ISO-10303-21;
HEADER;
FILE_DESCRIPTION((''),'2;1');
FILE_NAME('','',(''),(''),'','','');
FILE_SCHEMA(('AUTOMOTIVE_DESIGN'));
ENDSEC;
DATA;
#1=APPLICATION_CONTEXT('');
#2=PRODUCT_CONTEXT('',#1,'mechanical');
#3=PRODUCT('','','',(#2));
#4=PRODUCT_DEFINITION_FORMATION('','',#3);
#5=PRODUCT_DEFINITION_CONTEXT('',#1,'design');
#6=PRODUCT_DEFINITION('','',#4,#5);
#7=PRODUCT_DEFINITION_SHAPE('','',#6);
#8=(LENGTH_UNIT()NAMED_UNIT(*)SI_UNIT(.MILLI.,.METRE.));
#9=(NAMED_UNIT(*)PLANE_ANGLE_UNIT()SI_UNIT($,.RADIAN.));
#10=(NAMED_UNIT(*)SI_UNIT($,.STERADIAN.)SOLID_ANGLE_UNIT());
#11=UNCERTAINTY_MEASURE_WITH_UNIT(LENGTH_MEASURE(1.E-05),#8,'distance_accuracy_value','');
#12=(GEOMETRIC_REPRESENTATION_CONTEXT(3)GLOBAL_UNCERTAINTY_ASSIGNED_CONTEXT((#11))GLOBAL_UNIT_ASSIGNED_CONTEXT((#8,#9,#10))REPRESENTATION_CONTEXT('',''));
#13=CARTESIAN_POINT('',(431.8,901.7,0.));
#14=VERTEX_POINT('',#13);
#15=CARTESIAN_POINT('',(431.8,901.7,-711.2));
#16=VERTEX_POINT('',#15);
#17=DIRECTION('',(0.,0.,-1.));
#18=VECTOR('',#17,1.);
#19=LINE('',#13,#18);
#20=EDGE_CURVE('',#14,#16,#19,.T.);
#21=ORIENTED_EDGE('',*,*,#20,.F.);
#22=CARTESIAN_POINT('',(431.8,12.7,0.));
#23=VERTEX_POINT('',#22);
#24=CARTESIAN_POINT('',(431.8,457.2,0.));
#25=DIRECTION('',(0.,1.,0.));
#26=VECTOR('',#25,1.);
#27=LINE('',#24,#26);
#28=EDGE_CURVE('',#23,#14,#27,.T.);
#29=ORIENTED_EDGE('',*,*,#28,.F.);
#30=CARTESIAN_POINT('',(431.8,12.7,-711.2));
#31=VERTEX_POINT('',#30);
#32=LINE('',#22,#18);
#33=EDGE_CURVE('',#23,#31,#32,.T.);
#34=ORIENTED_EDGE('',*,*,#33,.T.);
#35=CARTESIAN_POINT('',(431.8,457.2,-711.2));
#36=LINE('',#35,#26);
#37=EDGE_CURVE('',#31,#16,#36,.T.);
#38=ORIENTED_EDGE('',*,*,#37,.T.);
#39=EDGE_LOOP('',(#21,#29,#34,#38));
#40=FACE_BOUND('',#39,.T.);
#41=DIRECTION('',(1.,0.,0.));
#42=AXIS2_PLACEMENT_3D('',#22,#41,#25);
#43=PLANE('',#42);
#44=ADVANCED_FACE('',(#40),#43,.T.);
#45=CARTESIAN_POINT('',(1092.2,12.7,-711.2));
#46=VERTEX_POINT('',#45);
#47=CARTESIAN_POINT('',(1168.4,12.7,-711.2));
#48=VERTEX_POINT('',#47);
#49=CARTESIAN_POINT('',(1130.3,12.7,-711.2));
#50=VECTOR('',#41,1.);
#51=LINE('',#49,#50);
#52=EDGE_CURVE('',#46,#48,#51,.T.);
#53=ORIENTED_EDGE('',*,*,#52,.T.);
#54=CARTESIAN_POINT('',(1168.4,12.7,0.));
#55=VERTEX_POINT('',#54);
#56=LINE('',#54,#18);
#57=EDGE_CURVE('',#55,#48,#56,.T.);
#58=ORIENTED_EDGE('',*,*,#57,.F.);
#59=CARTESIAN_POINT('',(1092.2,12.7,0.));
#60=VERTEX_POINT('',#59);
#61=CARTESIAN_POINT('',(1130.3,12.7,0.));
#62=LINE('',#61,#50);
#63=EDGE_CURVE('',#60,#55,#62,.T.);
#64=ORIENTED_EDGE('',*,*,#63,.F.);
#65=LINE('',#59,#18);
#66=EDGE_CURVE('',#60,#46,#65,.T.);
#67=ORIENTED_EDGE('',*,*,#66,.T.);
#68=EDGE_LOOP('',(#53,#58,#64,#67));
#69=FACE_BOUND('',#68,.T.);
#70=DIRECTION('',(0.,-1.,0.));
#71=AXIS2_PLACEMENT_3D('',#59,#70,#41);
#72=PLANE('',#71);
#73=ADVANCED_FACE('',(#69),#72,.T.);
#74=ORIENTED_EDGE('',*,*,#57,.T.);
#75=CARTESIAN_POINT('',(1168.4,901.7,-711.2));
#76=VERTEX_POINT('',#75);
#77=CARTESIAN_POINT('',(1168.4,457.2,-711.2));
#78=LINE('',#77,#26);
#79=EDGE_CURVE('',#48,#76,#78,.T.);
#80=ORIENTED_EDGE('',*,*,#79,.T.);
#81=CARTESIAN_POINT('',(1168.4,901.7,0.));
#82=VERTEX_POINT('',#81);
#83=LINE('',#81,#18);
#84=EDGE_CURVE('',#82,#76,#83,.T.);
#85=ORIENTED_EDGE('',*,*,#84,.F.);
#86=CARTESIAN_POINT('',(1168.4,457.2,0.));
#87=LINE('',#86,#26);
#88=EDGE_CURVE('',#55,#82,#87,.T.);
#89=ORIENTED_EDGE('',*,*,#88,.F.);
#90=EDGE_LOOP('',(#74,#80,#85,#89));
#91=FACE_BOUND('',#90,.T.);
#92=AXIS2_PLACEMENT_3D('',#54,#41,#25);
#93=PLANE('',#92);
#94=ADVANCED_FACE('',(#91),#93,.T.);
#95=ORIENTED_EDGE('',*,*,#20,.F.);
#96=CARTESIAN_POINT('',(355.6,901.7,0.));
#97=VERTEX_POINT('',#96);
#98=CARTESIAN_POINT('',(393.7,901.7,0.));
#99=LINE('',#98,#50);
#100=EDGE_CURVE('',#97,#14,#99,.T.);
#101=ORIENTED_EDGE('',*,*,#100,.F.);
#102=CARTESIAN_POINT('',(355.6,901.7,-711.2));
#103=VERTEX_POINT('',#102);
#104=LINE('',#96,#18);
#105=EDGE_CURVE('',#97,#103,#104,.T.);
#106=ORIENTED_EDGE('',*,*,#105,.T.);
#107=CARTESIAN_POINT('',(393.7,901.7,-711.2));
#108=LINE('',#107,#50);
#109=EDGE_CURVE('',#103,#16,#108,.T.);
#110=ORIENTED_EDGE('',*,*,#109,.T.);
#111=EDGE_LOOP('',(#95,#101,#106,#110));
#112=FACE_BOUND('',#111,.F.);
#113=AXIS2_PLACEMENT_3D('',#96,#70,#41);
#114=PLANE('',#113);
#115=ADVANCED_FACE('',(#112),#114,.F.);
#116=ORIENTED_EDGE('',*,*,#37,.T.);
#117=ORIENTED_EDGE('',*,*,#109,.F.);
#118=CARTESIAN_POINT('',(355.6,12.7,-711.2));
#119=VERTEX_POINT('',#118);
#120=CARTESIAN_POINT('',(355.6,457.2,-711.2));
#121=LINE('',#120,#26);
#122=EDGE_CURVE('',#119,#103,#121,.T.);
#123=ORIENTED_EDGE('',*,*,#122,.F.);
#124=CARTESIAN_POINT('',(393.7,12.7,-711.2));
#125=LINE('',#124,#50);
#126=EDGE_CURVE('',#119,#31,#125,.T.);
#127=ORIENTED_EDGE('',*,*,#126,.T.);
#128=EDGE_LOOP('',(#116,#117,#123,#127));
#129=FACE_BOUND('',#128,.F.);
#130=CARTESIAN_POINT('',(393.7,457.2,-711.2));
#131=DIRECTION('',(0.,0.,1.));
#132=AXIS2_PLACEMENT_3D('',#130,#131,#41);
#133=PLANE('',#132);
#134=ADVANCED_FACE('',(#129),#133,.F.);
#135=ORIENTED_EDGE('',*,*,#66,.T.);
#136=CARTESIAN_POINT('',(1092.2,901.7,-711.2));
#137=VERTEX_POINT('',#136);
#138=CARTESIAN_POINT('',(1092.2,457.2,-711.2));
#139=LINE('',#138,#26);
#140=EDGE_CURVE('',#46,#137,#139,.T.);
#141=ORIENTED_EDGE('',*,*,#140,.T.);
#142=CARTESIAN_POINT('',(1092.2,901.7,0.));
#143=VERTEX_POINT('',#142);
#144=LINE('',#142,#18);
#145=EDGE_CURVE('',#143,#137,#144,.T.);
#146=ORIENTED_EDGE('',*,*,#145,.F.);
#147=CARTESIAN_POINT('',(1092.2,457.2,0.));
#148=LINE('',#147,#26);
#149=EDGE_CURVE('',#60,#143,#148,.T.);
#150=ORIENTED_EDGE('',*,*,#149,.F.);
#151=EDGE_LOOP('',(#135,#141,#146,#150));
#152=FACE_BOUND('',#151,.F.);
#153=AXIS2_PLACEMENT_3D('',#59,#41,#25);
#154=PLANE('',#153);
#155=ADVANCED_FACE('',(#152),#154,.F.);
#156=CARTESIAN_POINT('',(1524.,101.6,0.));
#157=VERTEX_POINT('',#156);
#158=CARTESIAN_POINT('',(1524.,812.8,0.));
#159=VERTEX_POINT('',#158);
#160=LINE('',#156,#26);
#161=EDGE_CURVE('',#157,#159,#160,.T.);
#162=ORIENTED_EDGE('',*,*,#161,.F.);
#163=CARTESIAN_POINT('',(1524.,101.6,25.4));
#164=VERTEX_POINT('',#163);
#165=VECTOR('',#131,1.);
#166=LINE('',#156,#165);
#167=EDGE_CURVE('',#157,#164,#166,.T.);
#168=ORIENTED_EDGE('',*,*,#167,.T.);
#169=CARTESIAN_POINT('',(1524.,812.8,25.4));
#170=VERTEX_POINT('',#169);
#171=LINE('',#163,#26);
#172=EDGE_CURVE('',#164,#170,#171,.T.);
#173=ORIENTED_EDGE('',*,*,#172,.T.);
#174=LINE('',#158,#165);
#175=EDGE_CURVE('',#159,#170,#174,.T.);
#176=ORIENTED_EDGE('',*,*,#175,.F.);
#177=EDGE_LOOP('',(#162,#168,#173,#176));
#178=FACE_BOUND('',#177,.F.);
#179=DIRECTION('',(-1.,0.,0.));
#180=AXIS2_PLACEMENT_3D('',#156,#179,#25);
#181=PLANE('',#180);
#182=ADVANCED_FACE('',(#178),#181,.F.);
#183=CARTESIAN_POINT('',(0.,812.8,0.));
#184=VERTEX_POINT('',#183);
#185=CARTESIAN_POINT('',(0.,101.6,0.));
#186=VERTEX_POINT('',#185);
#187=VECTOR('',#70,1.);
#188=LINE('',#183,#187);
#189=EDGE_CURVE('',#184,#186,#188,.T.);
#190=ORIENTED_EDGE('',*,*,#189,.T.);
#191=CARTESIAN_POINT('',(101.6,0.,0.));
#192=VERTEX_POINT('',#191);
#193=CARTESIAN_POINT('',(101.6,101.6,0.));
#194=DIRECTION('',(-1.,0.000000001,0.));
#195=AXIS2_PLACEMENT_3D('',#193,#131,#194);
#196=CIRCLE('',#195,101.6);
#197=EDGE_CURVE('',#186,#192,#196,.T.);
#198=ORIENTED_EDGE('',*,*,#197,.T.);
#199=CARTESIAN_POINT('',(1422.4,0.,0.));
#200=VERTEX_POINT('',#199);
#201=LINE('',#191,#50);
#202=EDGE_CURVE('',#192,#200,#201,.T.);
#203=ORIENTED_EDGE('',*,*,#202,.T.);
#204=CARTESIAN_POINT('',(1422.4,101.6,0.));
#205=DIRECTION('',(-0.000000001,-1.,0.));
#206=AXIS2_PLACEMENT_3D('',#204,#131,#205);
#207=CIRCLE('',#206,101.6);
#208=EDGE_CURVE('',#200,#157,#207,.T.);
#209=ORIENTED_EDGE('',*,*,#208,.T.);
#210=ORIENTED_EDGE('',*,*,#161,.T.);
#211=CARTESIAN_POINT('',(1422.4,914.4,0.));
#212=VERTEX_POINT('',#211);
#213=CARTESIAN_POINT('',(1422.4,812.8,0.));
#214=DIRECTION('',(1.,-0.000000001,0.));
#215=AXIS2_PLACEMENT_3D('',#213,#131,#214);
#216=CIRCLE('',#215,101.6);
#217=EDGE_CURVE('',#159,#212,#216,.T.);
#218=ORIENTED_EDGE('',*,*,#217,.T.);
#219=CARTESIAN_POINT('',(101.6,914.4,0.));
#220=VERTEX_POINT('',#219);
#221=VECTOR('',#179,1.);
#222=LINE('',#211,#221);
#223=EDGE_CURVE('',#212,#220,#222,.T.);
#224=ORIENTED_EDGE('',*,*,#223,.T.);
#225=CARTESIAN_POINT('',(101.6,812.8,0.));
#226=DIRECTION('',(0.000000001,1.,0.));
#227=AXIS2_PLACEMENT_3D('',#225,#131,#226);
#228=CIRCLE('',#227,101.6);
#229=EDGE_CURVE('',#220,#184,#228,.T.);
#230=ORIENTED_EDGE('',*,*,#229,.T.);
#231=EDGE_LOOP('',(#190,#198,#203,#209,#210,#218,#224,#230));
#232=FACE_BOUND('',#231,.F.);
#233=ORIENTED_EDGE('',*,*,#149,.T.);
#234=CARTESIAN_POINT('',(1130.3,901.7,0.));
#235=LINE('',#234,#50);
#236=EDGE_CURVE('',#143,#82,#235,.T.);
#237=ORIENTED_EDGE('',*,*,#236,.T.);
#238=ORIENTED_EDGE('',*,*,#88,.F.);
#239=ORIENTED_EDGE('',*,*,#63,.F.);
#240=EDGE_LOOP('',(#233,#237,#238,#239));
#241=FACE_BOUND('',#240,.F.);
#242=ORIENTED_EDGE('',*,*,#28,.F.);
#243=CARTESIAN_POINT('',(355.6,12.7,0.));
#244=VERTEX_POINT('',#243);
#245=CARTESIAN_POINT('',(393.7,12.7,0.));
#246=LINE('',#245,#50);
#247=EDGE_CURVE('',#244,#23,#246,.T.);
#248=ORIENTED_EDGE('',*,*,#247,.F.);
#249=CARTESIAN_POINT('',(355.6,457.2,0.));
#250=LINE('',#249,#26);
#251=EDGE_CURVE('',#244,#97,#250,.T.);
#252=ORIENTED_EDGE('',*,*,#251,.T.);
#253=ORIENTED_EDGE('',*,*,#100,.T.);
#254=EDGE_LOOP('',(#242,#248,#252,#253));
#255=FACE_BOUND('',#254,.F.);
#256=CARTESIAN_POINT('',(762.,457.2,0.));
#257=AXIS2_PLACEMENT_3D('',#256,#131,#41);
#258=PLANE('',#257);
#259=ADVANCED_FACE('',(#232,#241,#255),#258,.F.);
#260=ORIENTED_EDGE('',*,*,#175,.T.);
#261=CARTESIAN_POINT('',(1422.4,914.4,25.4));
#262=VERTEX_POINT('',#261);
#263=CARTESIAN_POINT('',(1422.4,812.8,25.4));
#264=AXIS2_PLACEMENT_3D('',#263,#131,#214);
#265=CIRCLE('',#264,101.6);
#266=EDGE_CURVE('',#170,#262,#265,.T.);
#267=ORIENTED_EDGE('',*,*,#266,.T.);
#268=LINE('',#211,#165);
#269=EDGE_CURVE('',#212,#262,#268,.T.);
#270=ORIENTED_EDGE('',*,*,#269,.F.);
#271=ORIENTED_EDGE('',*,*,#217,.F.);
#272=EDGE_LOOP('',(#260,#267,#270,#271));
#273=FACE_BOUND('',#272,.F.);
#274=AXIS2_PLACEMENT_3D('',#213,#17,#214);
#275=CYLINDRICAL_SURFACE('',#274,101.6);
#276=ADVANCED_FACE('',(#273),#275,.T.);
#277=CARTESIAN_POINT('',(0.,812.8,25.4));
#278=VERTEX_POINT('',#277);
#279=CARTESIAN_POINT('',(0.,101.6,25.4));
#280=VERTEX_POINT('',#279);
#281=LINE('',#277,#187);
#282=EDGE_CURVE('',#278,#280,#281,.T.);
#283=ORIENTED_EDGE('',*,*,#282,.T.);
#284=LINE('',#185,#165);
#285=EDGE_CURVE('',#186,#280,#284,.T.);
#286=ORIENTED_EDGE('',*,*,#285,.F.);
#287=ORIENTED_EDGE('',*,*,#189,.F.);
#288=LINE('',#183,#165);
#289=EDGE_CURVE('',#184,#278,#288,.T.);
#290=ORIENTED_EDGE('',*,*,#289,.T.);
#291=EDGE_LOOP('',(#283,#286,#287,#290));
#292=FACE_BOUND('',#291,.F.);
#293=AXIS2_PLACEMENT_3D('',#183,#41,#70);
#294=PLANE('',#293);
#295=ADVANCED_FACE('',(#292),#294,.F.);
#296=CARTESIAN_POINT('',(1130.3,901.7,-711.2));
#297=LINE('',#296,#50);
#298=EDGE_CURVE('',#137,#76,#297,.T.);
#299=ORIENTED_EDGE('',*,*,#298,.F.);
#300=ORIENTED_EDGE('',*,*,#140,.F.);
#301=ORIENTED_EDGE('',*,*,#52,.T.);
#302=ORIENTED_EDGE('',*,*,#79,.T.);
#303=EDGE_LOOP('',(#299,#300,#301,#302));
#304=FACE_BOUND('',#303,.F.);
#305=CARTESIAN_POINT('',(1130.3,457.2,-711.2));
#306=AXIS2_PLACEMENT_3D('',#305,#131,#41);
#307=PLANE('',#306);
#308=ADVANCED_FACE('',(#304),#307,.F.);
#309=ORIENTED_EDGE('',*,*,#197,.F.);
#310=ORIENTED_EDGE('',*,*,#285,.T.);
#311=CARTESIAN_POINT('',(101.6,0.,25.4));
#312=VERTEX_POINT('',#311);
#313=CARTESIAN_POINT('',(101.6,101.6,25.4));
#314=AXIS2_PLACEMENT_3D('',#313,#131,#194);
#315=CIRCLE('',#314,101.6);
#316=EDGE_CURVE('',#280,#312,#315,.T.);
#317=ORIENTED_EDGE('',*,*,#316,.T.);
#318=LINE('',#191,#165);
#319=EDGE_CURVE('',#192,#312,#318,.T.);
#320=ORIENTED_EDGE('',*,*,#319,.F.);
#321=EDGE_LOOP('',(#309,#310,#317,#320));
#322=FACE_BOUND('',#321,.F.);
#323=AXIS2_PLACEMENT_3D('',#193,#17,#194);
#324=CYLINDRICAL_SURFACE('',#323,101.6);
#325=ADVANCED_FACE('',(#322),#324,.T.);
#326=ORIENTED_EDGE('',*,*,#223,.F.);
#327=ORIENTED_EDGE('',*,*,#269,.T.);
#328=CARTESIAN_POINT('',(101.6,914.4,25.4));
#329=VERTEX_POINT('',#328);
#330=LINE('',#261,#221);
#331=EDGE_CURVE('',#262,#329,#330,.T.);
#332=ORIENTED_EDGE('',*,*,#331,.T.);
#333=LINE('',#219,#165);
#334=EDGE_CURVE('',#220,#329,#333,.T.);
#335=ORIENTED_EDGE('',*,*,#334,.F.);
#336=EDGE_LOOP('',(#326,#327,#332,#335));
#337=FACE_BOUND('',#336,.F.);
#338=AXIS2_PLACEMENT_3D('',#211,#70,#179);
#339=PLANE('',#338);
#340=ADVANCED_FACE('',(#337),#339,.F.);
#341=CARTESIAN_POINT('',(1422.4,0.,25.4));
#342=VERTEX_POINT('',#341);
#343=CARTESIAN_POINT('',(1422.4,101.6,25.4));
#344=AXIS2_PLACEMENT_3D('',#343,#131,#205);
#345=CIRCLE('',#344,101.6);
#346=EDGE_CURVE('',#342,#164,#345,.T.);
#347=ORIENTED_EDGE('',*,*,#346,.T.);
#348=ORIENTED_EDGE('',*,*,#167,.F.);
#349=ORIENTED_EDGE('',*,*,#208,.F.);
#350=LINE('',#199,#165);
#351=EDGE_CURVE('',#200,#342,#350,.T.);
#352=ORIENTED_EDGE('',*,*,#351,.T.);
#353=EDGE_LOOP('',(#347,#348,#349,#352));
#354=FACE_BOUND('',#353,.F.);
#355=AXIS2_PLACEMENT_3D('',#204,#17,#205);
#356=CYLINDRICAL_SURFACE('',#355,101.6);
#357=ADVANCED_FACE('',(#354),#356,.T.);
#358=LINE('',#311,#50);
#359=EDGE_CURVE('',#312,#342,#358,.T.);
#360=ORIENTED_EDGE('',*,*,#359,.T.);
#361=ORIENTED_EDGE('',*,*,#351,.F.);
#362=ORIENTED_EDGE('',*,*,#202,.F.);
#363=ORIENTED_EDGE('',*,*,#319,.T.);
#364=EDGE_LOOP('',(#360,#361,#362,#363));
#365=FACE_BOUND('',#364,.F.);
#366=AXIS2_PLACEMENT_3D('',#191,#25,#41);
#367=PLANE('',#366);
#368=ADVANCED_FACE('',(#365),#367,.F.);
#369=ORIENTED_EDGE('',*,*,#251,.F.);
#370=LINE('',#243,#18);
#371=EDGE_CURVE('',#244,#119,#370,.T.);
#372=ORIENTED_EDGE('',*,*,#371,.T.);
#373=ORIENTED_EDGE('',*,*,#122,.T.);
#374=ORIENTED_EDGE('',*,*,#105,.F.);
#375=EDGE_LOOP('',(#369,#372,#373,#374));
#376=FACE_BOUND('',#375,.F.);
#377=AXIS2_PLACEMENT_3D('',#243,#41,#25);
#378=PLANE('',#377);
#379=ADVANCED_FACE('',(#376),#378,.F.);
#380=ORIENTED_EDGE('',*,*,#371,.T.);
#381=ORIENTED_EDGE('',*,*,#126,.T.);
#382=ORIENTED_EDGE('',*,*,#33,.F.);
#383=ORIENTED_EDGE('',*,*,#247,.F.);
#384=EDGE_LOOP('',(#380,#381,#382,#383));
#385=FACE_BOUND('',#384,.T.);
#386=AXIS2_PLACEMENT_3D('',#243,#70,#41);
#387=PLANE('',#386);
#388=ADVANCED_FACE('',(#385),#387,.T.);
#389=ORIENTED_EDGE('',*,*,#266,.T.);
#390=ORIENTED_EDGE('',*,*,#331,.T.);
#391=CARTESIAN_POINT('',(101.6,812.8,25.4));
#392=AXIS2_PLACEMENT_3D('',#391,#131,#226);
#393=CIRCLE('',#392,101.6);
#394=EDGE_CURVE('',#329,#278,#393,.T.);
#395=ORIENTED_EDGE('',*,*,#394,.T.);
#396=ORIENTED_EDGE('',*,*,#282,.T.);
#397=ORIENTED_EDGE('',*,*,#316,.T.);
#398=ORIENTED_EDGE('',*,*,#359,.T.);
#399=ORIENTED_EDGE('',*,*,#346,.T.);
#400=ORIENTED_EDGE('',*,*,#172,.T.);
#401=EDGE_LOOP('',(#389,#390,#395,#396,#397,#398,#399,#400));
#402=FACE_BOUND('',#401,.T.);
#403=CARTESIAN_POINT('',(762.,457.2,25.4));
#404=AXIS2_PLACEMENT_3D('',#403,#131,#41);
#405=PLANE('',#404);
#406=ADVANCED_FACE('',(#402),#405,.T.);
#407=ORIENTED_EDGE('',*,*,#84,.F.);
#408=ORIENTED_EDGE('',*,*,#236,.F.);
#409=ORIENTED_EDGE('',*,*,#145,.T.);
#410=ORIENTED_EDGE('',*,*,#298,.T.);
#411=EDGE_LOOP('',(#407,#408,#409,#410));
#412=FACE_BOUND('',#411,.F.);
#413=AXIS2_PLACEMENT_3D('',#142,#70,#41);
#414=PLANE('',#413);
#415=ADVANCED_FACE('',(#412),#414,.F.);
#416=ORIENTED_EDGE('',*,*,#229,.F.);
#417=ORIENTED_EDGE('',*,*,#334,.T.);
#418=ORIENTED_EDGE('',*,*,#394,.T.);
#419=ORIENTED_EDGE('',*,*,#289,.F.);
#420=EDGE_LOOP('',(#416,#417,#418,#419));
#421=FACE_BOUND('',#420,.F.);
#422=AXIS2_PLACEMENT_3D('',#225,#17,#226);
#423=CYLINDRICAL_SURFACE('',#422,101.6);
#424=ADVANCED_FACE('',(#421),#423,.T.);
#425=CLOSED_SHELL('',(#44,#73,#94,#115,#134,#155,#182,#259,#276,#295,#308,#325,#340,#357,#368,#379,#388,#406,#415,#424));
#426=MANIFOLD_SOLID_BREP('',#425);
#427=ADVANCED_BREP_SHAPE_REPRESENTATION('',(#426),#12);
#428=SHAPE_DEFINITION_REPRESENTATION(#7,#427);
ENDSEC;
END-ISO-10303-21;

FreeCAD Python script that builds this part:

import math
import FreeCAD as App
import Part
import Sketcher
from FreeCAD import Vector
Q = App.Units.Quantity

doc = App.newDocument("Part")
body = doc.addObject("PartDesign::Body", "Body")

# Sketch on XY plane
sketch1 = doc.addObject("Sketcher::SketchObject", "Sketch")
body.addObject(sketch1)
sketch1.AttachmentSupport = (doc.XY_Plane, [""])
sketch1.MapMode = "FlatFace"
sketch1.addGeometry([
    Part.ArcOfCircle(Part.Circle(Vector(101.6, 101.6, 0), Vector(0, 0, 1), 101.6), math.radians(180), math.radians(270)),  # 0
    Part.LineSegment(Vector(101.6, 0, 0), Vector(1422.4, 0, 0)),  # 1
    Part.ArcOfCircle(Part.Circle(Vector(1422.4, 101.6, 0), Vector(0, 0, 1), 101.6), math.radians(-90), math.radians(0)),  # 2
    Part.LineSegment(Vector(1524, 101.6, 0), Vector(1524, 812.8, 0)),  # 3
    Part.ArcOfCircle(Part.Circle(Vector(1422.4, 812.8, 0), Vector(0, 0, 1), 101.6), math.radians(0), math.radians(90)),  # 4
    Part.LineSegment(Vector(1422.4, 914.4, 0), Vector(101.6, 914.4, 0)),  # 5
    Part.ArcOfCircle(Part.Circle(Vector(101.6, 812.8, 0), Vector(0, 0, 1), 101.6), math.radians(90), math.radians(180)),  # 6
    Part.LineSegment(Vector(0, 812.8, 0), Vector(0, 101.6, 0)),  # 7
], False)
sketch1.addConstraint([
    Sketcher.Constraint("Tangent", 0, 2, 1, 1),
    Sketcher.Constraint("Tangent", 1, 2, 2, 1),
    Sketcher.Constraint("Tangent", 2, 2, 3, 1),
    Sketcher.Constraint("Tangent", 3, 2, 4, 1),
    Sketcher.Constraint("Tangent", 4, 2, 5, 1),
    Sketcher.Constraint("Tangent", 5, 2, 6, 1),
    Sketcher.Constraint("Tangent", 6, 2, 7, 1),
    Sketcher.Constraint("Tangent", 7, 2, 0, 1),
    Sketcher.Constraint("Horizontal", 1),
    Sketcher.Constraint("Vertical", 3),
    Sketcher.Constraint("Horizontal", 5),
    Sketcher.Constraint("Vertical", 7),
    Sketcher.Constraint("Equal", 0, 2),
    Sketcher.Constraint("Equal", 2, 4),
    Sketcher.Constraint("Equal", 4, 6),
    Sketcher.Constraint("PointOnObject", 0, 2, -1),
    Sketcher.Constraint("PointOnObject", 6, 2, -2),
    Sketcher.Constraint("Radius", 0, Q("4 in")),
    Sketcher.Constraint("DistanceX", 1, 1, 1, 2, Q("52 in")),
    Sketcher.Constraint("DistanceY", 3, 1, 3, 2, Q("28 in")),
])
pad1 = doc.addObject("PartDesign::Pad", "Pad")
body.addObject(pad1)
pad1.Profile = sketch1
pad1.Length = Q("1 in")

# Sketch on XY plane
sketch2 = doc.addObject("Sketcher::SketchObject", "Sketch001")
body.addObject(sketch2)
sketch2.AttachmentSupport = (doc.XY_Plane, [""])
sketch2.MapMode = "FlatFace"
sketch2.addGeometry([
    Part.LineSegment(Vector(355.6, 901.7, 0), Vector(355.6, 12.7, 0)),  # 0
    Part.LineSegment(Vector(355.6, 12.7, 0), Vector(431.8, 12.7, 0)),  # 1
    Part.LineSegment(Vector(431.8, 12.7, 0), Vector(431.8, 901.7, 0)),  # 2
    Part.LineSegment(Vector(431.8, 901.7, 0), Vector(355.6, 901.7, 0)),  # 3
    Part.LineSegment(Vector(1092.2, 901.7, 0), Vector(1092.2, 12.7, 0)),  # 4
    Part.LineSegment(Vector(1092.2, 12.7, 0), Vector(1168.4, 12.7, 0)),  # 5
    Part.LineSegment(Vector(1168.4, 12.7, 0), Vector(1168.4, 901.7, 0)),  # 6
    Part.LineSegment(Vector(1168.4, 901.7, 0), Vector(1092.2, 901.7, 0)),  # 7
], False)
sketch2.addConstraint([
    Sketcher.Constraint("Coincident", 0, 2, 1, 1),
    Sketcher.Constraint("Coincident", 1, 2, 2, 1),
    Sketcher.Constraint("Coincident", 2, 2, 3, 1),
    Sketcher.Constraint("Coincident", 3, 2, 0, 1),
    Sketcher.Constraint("Coincident", 4, 2, 5, 1),
    Sketcher.Constraint("Coincident", 5, 2, 6, 1),
    Sketcher.Constraint("Coincident", 6, 2, 7, 1),
    Sketcher.Constraint("Coincident", 7, 2, 4, 1),
    Sketcher.Constraint("Vertical", 0),
    Sketcher.Constraint("Horizontal", 1),
    Sketcher.Constraint("Vertical", 2),
    Sketcher.Constraint("Horizontal", 3),
    Sketcher.Constraint("Vertical", 4),
    Sketcher.Constraint("Horizontal", 5),
    Sketcher.Constraint("Vertical", 6),
    Sketcher.Constraint("Horizontal", 7),
    Sketcher.Constraint("Horizontal", 1, 2, 4, 2),
    Sketcher.Constraint("Horizontal", 3, 2, 6, 2),
    Sketcher.Constraint("Equal", 3, 5),
    Sketcher.Constraint("DistanceX", 1, 1, 1, 2, Q("3 in")),
    Sketcher.Constraint("DistanceY", 0, 2, 0, 1, Q("35 in")),
    Sketcher.Constraint("DistanceX", -1, 1, 0, 2, Q("14 in")),
    Sketcher.Constraint("DistanceX", -1, 1, 4, 2, Q("43 in")),
    Sketcher.Constraint("DistanceY", -1, 1, 0, 2, Q("0.5 in")),
])
pad2 = doc.addObject("PartDesign::Pad", "Pad001")
body.addObject(pad2)
pad2.Profile = sketch2
pad2.Length = Q("28 in")
pad2.Reversed = True

doc.recompute()
